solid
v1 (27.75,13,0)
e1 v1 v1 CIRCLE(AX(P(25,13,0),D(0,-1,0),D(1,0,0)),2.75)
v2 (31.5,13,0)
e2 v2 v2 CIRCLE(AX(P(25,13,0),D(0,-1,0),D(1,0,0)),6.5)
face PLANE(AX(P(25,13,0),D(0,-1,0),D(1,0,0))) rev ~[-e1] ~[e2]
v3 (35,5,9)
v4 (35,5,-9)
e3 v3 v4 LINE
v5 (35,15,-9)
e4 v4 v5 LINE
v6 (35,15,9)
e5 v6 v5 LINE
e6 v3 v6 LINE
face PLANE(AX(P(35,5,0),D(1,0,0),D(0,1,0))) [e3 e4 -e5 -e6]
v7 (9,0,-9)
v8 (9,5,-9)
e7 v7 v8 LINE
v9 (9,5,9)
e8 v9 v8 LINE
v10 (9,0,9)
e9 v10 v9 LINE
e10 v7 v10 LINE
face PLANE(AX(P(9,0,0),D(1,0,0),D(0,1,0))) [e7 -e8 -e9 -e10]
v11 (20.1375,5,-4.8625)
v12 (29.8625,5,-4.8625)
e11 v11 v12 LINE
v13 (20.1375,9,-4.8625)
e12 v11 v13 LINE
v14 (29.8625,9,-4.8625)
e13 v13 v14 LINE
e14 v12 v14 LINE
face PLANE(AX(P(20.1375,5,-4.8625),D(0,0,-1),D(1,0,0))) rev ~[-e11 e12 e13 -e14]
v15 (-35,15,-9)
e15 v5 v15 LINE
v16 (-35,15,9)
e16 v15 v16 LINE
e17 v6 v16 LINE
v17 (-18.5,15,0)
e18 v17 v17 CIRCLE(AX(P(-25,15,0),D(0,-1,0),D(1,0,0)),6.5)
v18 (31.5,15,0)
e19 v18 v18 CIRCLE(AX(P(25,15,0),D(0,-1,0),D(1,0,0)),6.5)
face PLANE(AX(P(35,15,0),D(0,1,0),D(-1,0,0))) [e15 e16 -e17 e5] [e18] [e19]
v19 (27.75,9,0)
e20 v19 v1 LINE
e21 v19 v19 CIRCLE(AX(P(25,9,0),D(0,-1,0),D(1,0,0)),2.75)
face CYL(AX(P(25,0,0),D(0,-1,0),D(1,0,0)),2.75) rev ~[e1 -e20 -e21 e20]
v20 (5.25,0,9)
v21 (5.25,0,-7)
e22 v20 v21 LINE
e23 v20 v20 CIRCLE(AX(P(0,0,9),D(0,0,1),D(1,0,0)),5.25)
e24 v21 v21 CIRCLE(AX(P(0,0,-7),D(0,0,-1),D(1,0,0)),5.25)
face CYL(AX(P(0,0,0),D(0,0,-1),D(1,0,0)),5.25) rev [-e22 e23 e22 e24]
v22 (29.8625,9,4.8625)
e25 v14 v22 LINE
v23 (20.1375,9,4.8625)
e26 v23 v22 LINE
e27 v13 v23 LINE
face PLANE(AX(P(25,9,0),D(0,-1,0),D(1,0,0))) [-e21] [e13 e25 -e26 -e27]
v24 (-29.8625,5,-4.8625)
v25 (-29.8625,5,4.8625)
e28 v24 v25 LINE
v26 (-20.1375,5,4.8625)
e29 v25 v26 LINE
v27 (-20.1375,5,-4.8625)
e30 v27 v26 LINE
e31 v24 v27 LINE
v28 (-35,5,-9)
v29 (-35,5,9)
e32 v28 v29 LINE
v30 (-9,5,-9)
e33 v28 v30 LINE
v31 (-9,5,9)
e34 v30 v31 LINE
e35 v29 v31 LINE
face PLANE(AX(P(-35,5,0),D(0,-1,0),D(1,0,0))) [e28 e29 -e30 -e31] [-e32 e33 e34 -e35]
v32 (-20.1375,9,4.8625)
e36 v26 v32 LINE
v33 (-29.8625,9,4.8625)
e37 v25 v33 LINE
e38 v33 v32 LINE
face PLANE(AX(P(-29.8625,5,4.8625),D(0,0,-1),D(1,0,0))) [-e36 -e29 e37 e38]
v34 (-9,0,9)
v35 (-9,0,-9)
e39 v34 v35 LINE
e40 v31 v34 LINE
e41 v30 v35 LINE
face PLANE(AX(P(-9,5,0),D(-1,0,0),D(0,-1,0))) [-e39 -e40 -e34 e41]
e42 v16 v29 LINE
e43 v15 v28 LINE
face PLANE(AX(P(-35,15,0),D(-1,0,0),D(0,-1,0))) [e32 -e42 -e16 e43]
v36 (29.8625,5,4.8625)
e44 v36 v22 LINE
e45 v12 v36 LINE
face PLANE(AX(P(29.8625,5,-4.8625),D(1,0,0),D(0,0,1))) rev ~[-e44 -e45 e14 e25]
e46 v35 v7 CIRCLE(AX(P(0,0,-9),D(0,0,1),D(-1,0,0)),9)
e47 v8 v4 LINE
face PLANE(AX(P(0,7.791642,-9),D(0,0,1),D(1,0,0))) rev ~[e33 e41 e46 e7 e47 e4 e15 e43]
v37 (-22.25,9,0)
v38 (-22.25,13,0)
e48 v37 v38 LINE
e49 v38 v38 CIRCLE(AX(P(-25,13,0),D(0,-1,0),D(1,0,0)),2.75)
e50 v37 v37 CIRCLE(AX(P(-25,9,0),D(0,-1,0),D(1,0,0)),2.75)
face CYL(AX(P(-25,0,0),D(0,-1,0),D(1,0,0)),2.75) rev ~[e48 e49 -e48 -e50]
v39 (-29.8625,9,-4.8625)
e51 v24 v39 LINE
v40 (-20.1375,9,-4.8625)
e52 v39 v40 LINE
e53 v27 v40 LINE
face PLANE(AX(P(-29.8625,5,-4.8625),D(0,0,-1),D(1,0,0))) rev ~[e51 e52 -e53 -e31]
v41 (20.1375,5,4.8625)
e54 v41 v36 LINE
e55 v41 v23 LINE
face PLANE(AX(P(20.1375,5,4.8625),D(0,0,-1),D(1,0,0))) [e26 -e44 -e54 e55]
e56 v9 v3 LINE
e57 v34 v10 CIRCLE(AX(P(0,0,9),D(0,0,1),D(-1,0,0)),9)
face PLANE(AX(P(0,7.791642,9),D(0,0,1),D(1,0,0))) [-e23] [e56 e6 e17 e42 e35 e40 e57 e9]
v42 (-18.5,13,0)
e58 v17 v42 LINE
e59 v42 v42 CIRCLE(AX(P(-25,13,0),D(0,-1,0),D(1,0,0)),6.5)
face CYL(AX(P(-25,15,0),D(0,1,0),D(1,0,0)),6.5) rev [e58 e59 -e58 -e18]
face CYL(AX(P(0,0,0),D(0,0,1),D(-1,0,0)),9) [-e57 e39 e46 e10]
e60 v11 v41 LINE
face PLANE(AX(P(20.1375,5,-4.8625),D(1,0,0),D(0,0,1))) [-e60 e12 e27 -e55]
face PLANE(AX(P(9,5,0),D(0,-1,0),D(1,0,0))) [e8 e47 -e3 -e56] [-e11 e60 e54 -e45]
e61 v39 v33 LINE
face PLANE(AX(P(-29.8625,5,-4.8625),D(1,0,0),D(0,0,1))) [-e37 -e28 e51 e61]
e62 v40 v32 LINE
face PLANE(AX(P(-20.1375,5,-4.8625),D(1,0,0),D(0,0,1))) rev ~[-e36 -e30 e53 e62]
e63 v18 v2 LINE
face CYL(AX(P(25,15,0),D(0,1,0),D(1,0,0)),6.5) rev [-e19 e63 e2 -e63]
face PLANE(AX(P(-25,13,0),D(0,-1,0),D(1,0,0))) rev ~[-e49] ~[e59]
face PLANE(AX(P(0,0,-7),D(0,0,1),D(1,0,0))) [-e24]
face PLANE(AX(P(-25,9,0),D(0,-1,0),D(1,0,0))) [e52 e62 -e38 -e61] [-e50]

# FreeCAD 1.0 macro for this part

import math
import FreeCAD as App
import Part
import Sketcher

V = App.Vector
Q = App.Units.Quantity

doc = App.newDocument("Part")
body = doc.addObject("PartDesign::Body", "Body")

sketch1 = body.newObject("Sketcher::SketchObject", "Sketch")
sketch1.AttachmentSupport = (doc.getObject("XY_Plane"), [""])
sketch1.MapMode = "FlatFace"
sketch1.addGeometry(Part.LineSegment(V(35, 15, 0), V(-35, 15, 0)), False)
sketch1.addGeometry(Part.LineSegment(V(-35, 15, 0), V(-35, 5, 0)), False)
sketch1.addGeometry(Part.LineSegment(V(-35, 5, 0), V(-9, 5, 0)), False)
sketch1.addGeometry(Part.LineSegment(V(-9, 5, 0), V(-9, 0, 0)), False)
sketch1.addGeometry(Part.ArcOfCircle(Part.Circle(V(0, 0, 0), V(0, 0, 1), 9), math.radians(180), math.radians(360)), False)
sketch1.addGeometry(Part.LineSegment(V(9, 0, 0), V(9, 5, 0)), False)
sketch1.addGeometry(Part.LineSegment(V(9, 5, 0), V(35, 5, 0)), False)
sketch1.addGeometry(Part.LineSegment(V(35, 5, 0), V(35, 15, 0)), False)
sketch1.addGeometry(Part.Circle(V(0, 0, 0), V(0, 0, 1), 5), False)
sketch1.addConstraint(Sketcher.Constraint("Coincident", 0, 2, 1, 1))
sketch1.addConstraint(Sketcher.Constraint("Coincident", 1, 2, 2, 1))
sketch1.addConstraint(Sketcher.Constraint("Coincident", 2, 2, 3, 1))
sketch1.addConstraint(Sketcher.Constraint("Tangent", 3, 2, 4, 1))
sketch1.addConstraint(Sketcher.Constraint("Tangent", 4, 2, 5, 1))
sketch1.addConstraint(Sketcher.Constraint("Coincident", 5, 2, 6, 1))
sketch1.addConstraint(Sketcher.Constraint("Coincident", 6, 2, 7, 1))
sketch1.addConstraint(Sketcher.Constraint("Coincident", 7, 2, 0, 1))
sketch1.addConstraint(Sketcher.Constraint("Horizontal", 0))
sketch1.addConstraint(Sketcher.Constraint("Vertical", 1))
sketch1.addConstraint(Sketcher.Constraint("Horizontal", 2))
sketch1.addConstraint(Sketcher.Constraint("Vertical", 3))
sketch1.addConstraint(Sketcher.Constraint("Vertical", 5))
sketch1.addConstraint(Sketcher.Constraint("Horizontal", 6))
sketch1.addConstraint(Sketcher.Constraint("Vertical", 7))
sketch1.addConstraint(Sketcher.Constraint("Coincident", 4, 3, -1, 1))
sketch1.addConstraint(Sketcher.Constraint("Coincident", 8, 3, -1, 1))
sketch1.addConstraint(Sketcher.Constraint("Symmetric", 1, 2, 6, 2, -2))
sketch1.addConstraint(Sketcher.Constraint("Radius", 4, Q("9 mm")))
sketch1.addConstraint(Sketcher.Constraint("Diameter", 8, Q("10.5 mm")))
sketch1.addConstraint(Sketcher.Constraint("DistanceX", 0, 2, 0, 1, Q("70 mm")))
sketch1.addConstraint(Sketcher.Constraint("DistanceY", 1, 2, 1, 1, Q("10 mm")))
sketch1.addConstraint(Sketcher.Constraint("DistanceY", 3, 2, 3, 1, Q("5 mm")))
pad1 = body.newObject("PartDesign::Pad", "Pad")
pad1.Profile = sketch1
pad1.Length = 18
pad1.Midplane = True

sketch2 = body.newObject("Sketcher::SketchObject", "Sketch001")
sketch2.AttachmentSupport = (doc.getObject("XZ_Plane"), [""])
sketch2.MapMode = "FlatFace"
sketch2.addGeometry(Part.Circle(V(-25, 0, 0), V(0, 0, 1), 2.8), False)
sketch2.addGeometry(Part.Circle(V(25, 0, 0), V(0, 0, 1), 2.8), False)
sketch2.addConstraint(Sketcher.Constraint("Equal", 0, 1))
sketch2.addConstraint(Sketcher.Constraint("Symmetric", 0, 3, 1, 3, -1, 1))
sketch2.addConstraint(Sketcher.Constraint("PointOnObject", 0, 3, -1))
sketch2.addConstraint(Sketcher.Constraint("Diameter", 0, Q("5.5 mm")))
sketch2.addConstraint(Sketcher.Constraint("DistanceX", 0, 3, -1, 1, Q("25 mm")))
pocket1 = body.newObject("PartDesign::Pocket", "Pocket")
pocket1.Profile = sketch2
pocket1.Type = "ThroughAll"

sketch3 = body.newObject("Sketcher::SketchObject", "Sketch002")
sketch3.AttachmentSupport = (doc.getObject("XZ_Plane"), [""])
sketch3.MapMode = "FlatFace"
sketch3.AttachmentOffset = App.Placement(V(0, 0, -15), App.Rotation())
sketch3.addGeometry(Part.Circle(V(-25, 0, 0), V(0, 0, 1), 6), False)
sketch3.addGeometry(Part.Circle(V(25, 0, 0), V(0, 0, 1), 6), False)
sketch3.addConstraint(Sketcher.Constraint("Equal", 0, 1))
sketch3.addConstraint(Sketcher.Constraint("Symmetric", 0, 3, 1, 3, -1, 1))
sketch3.addConstraint(Sketcher.Constraint("PointOnObject", 0, 3, -1))
sketch3.addConstraint(Sketcher.Constraint("Diameter", 0, Q("13 mm")))
sketch3.addConstraint(Sketcher.Constraint("DistanceX", 0, 3, -1, 1, Q("25 mm")))
pocket2 = body.newObject("PartDesign::Pocket", "Pocket001")
pocket2.Profile = sketch3
pocket2.Length = 2
pocket2.Reversed = True

sketch4 = body.newObject("Sketcher::SketchObject", "Sketch003")
sketch4.AttachmentSupport = (doc.getObject("XY_Plane"), [""])
sketch4.MapMode = "FlatFace"
sketch4.AttachmentOffset = App.Placement(V(0, 0, -9), App.Rotation())
sketch4.addGeometry(Part.Circle(V(0, 0, 0), V(0, 0, 1), 9), False)
sketch4.addConstraint(Sketcher.Constraint("Coincident", 0, 3, -1, 1))
sketch4.addConstraint(Sketcher.Constraint("Diameter", 0, Q("18 mm")))
pad2 = body.newObject("PartDesign::Pad", "Pad001")
pad2.Profile = sketch4
pad2.Length = 2

sketch5 = body.newObject("Sketcher::SketchObject", "Sketch004")
sketch5.AttachmentSupport = (doc.getObject("XZ_Plane"), [""])
sketch5.MapMode = "FlatFace"
sketch5.AttachmentOffset = App.Placement(V(0, 0, -5), App.Rotation())
sketch5.addGeometry(Part.LineSegment(V(-30, 5, 0), V(-30, -5, 0)), False)
sketch5.addGeometry(Part.LineSegment(V(-30, -5, 0), V(-20, -5, 0)), False)
sketch5.addGeometry(Part.LineSegment(V(-20, -5, 0), V(-20, 5, 0)), False)
sketch5.addGeometry(Part.LineSegment(V(-20, 5, 0), V(-30, 5, 0)), False)
sketch5.addGeometry(Part.LineSegment(V(20, 5, 0), V(20, -5, 0)), False)
sketch5.addGeometry(Part.LineSegment(V(20, -5, 0), V(30, -5, 0)), False)
sketch5.addGeometry(Part.LineSegment(V(30, -5, 0), V(30, 5, 0)), False)
sketch5.addGeometry(Part.LineSegment(V(30, 5, 0), V(20, 5, 0)), False)
sketch5.addConstraint(Sketcher.Constraint("Coincident", 0, 2, 1, 1))
sketch5.addConstraint(Sketcher.Constraint("Coincident", 1, 2, 2, 1))
sketch5.addConstraint(Sketcher.Constraint("Coincident", 2, 2, 3, 1))
sketch5.addConstraint(Sketcher.Constraint("Coincident", 3, 2, 0, 1))
sketch5.addConstraint(Sketcher.Constraint("Coincident", 4, 2, 5, 1))
sketch5.addConstraint(Sketcher.Constraint("Coincident", 5, 2, 6, 1))
sketch5.addConstraint(Sketcher.Constraint("Coincident", 6, 2, 7, 1))
sketch5.addConstraint(Sketcher.Constraint("Coincident", 7, 2, 4, 1))
sketch5.addConstraint(Sketcher.Constraint("Vertical", 0))
sketch5.addConstraint(Sketcher.Constraint("Horizontal", 1))
sketch5.addConstraint(Sketcher.Constraint("Vertical", 2))
sketch5.addConstraint(Sketcher.Constraint("Horizontal", 3))
sketch5.addConstraint(Sketcher.Constraint("Vertical", 4))
sketch5.addConstraint(Sketcher.Constraint("Horizontal", 5))
sketch5.addConstraint(Sketcher.Constraint("Vertical", 6))
sketch5.addConstraint(Sketcher.Constraint("Horizontal", 7))
sketch5.addConstraint(Sketcher.Constraint("Symmetric", 2, 2, 4, 2, -1, 1))
sketch5.addConstraint(Sketcher.Constraint("Symmetric", 0, 2, 6, 2, -1, 1))
sketch5.addConstraint(Sketcher.Constraint("Horizontal", 1, 2, 4, 2))
sketch5.addConstraint(Sketcher.Constraint("Equal", 7, 0))
sketch5.addConstraint(Sketcher.Constraint("DistanceX", 0, 2, 4, 2, Q("50 mm")))
sketch5.addConstraint(Sketcher.Constraint("DistanceX", 1, 1, 1, 2, Q("9.725 mm")))
pocket3 = body.newObject("PartDesign::Pocket", "Pocket002")
pocket3.Profile = sketch5
pocket3.Length = 4

doc.recompute()
